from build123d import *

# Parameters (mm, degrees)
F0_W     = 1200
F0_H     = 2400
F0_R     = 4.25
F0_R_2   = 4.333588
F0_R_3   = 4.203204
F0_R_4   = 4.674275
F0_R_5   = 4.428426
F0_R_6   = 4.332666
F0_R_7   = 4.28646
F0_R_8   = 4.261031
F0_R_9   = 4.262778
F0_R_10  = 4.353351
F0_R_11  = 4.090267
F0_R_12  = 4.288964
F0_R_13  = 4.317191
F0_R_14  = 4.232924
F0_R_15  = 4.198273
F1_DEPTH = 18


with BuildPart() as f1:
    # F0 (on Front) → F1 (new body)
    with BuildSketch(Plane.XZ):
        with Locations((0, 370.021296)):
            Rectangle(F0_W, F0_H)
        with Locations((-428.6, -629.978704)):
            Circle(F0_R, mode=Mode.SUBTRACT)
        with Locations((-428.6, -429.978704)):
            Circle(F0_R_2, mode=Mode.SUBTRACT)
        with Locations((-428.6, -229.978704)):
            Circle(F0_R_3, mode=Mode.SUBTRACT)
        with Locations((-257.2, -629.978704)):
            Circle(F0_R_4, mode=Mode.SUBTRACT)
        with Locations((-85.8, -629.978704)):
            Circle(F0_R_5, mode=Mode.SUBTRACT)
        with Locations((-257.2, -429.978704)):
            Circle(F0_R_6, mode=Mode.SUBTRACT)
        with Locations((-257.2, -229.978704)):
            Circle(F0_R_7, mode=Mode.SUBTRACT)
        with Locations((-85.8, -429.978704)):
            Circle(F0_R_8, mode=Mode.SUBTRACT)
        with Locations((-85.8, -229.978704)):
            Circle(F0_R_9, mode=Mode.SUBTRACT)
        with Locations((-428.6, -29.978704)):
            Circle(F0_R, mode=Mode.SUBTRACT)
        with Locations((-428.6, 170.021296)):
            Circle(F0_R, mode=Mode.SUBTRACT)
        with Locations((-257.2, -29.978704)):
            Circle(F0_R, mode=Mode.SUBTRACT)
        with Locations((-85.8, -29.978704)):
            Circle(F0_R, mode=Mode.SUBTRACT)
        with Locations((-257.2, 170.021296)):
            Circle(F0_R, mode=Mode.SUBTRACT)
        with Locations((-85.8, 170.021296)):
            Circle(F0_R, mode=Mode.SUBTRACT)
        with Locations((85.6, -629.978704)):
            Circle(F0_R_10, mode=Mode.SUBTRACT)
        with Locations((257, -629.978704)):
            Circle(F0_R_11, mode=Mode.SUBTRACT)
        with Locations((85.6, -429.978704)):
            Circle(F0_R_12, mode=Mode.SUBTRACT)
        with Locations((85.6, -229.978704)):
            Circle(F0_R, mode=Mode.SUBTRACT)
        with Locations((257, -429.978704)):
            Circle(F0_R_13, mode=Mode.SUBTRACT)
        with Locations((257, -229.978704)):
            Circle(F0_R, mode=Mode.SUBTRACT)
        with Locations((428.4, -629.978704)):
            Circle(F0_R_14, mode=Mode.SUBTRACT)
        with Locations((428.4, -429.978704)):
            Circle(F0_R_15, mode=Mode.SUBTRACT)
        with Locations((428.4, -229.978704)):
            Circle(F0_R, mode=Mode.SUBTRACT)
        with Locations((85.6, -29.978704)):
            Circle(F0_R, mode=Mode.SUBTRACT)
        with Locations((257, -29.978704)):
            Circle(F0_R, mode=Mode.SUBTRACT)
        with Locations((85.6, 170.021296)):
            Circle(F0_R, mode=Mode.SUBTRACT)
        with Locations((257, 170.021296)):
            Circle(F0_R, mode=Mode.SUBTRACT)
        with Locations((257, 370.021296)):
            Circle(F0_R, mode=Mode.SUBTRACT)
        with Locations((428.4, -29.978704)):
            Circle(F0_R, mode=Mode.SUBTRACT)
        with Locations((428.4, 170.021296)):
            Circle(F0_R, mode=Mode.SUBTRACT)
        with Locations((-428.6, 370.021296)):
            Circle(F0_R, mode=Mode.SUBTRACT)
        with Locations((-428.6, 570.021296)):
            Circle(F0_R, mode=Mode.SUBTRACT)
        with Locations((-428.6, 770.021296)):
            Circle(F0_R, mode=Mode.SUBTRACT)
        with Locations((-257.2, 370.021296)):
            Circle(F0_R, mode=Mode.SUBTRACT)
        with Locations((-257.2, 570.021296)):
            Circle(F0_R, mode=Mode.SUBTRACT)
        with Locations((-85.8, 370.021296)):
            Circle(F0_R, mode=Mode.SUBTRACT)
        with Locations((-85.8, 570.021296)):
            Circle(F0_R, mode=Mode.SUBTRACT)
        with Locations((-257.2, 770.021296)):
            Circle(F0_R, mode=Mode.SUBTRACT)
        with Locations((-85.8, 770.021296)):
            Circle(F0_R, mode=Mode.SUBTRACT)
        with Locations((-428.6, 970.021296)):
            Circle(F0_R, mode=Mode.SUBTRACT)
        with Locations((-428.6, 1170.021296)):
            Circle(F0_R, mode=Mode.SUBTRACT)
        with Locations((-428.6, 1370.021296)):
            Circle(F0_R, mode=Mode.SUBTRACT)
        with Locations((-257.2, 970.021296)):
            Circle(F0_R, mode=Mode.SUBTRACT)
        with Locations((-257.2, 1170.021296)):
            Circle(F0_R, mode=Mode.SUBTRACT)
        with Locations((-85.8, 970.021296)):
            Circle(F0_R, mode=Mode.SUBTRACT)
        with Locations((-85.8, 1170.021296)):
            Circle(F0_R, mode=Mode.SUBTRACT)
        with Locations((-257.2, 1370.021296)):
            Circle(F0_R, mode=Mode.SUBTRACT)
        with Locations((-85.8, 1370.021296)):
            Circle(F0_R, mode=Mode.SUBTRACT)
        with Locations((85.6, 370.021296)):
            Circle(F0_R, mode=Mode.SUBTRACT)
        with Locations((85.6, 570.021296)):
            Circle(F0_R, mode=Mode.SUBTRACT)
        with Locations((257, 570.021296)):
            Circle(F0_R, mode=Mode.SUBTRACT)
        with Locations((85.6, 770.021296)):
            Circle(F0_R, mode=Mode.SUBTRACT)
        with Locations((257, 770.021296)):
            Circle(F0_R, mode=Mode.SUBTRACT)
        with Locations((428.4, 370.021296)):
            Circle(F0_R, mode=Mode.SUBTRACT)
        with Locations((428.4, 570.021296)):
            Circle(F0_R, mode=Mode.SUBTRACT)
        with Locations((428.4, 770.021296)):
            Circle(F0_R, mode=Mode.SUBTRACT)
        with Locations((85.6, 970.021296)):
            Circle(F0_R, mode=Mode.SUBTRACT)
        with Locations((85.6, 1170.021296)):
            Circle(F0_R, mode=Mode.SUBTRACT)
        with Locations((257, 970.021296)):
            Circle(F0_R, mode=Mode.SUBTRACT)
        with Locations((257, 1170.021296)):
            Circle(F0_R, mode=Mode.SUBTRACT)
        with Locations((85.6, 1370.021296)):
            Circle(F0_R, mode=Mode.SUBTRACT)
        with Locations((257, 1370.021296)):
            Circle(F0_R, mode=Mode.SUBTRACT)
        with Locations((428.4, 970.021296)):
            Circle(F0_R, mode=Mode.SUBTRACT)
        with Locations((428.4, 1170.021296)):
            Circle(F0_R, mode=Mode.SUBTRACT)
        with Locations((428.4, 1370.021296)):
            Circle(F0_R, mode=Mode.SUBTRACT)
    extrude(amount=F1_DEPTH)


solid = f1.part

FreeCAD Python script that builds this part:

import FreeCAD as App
import Part
import Sketcher
from FreeCAD import Vector


def add_polygon(sketch, points):
    """Adds a closed chain of lines whose ends are joined by coincident constraints."""
    first, n = sketch.GeometryCount, len(points)
    for a, b in zip(points, points[1:] + points[:1]):
        sketch.addGeometry(Part.LineSegment(App.Vector(*a, 0), App.Vector(*b, 0)), False)
    for i in range(n):
        sketch.addConstraint(Sketcher.Constraint("Coincident", first + i, 2, first + (i + 1) % n, 1))

doc = App.newDocument("Part")
body = doc.addObject("PartDesign::Body", "Body")

# Sketch on XZ plane
sketch1 = doc.addObject("Sketcher::SketchObject", "Sketch")
body.addObject(sketch1)
sketch1.AttachmentSupport = (doc.XZ_Plane, [""])
sketch1.MapMode = "FlatFace"
add_polygon(sketch1, [(-600, 1570), (-600, -830), (600, -830), (600, 1570)])  # lines 0-3
sketch1.addGeometry(Part.Circle(Vector(-428.6, -630, 0), Vector(0, 0, 1), 4.2), False)  # 4
sketch1.addGeometry(Part.Circle(Vector(-428.6, -430, 0), Vector(0, 0, 1), 4.3), False)  # 5
sketch1.addGeometry(Part.Circle(Vector(-257.2, -630, 0), Vector(0, 0, 1), 4.7), False)  # 6
sketch1.addGeometry(Part.Circle(Vector(-257.2, -430, 0), Vector(0, 0, 1), 4.3), False)  # 7
sketch1.addGeometry(Part.Circle(Vector(-428.6, -230, 0), Vector(0, 0, 1), 4.2), False)  # 8
sketch1.addGeometry(Part.Circle(Vector(-257.2, -230, 0), Vector(0, 0, 1), 4.3), False)  # 9
sketch1.addGeometry(Part.Circle(Vector(-85.8, -630, 0), Vector(0, 0, 1), 4.4), False)  # 10
sketch1.addGeometry(Part.Circle(Vector(-85.8, -430, 0), Vector(0, 0, 1), 4.3), False)  # 11
sketch1.addGeometry(Part.Circle(Vector(-85.8, -230, 0), Vector(0, 0, 1), 4.3), False)  # 12
sketch1.addGeometry(Part.Circle(Vector(-428.6, -30, 0), Vector(0, 0, 1), 4.2), False)  # 13
sketch1.addGeometry(Part.Circle(Vector(-257.2, -30, 0), Vector(0, 0, 1), 4.2), False)  # 14
sketch1.addGeometry(Part.Circle(Vector(-428.6, 170, 0), Vector(0, 0, 1), 4.2), False)  # 15
sketch1.addGeometry(Part.Circle(Vector(-257.2, 170, 0), Vector(0, 0, 1), 4.2), False)  # 16
sketch1.addGeometry(Part.Circle(Vector(-85.8, -30, 0), Vector(0, 0, 1), 4.2), False)  # 17
sketch1.addGeometry(Part.Circle(Vector(-85.8, 170, 0), Vector(0, 0, 1), 4.2), False)  # 18
sketch1.addGeometry(Part.Circle(Vector(85.6, -630, 0), Vector(0, 0, 1), 4.4), False)  # 19
sketch1.addGeometry(Part.Circle(Vector(85.6, -430, 0), Vector(0, 0, 1), 4.3), False)  # 20
sketch1.addGeometry(Part.Circle(Vector(85.6, -230, 0), Vector(0, 0, 1), 4.2), False)  # 21
sketch1.addGeometry(Part.Circle(Vector(257, -630, 0), Vector(0, 0, 1), 4.1), False)  # 22
sketch1.addGeometry(Part.Circle(Vector(257, -430, 0), Vector(0, 0, 1), 4.3), False)  # 23
sketch1.addGeometry(Part.Circle(Vector(428.4, -630, 0), Vector(0, 0, 1), 4.2), False)  # 24
sketch1.addGeometry(Part.Circle(Vector(428.4, -430, 0), Vector(0, 0, 1), 4.2), False)  # 25
sketch1.addGeometry(Part.Circle(Vector(257, -230, 0), Vector(0, 0, 1), 4.2), False)  # 26
sketch1.addGeometry(Part.Circle(Vector(428.4, -230, 0), Vector(0, 0, 1), 4.2), False)  # 27
sketch1.addGeometry(Part.Circle(Vector(85.6, -30, 0), Vector(0, 0, 1), 4.2), False)  # 28
sketch1.addGeometry(Part.Circle(Vector(85.6, 170, 0), Vector(0, 0, 1), 4.2), False)  # 29
sketch1.addGeometry(Part.Circle(Vector(257, -30, 0), Vector(0, 0, 1), 4.2), False)  # 30
sketch1.addGeometry(Part.Circle(Vector(428.4, -30, 0), Vector(0, 0, 1), 4.2), False)  # 31
sketch1.addGeometry(Part.Circle(Vector(257, 170, 0), Vector(0, 0, 1), 4.2), False)  # 32
sketch1.addGeometry(Part.Circle(Vector(428.4, 170, 0), Vector(0, 0, 1), 4.2), False)  # 33
sketch1.addGeometry(Part.Circle(Vector(-428.6, 370, 0), Vector(0, 0, 1), 4.2), False)  # 34
sketch1.addGeometry(Part.Circle(Vector(-428.6, 570, 0), Vector(0, 0, 1), 4.2), False)  # 35
sketch1.addGeometry(Part.Circle(Vector(-257.2, 370, 0), Vector(0, 0, 1), 4.2), False)  # 36
sketch1.addGeometry(Part.Circle(Vector(-257.2, 570, 0), Vector(0, 0, 1), 4.2), False)  # 37
sketch1.addGeometry(Part.Circle(Vector(-428.6, 770, 0), Vector(0, 0, 1), 4.2), False)  # 38
sketch1.addGeometry(Part.Circle(Vector(-257.2, 770, 0), Vector(0, 0, 1), 4.2), False)  # 39
sketch1.addGeometry(Part.Circle(Vector(-85.8, 370, 0), Vector(0, 0, 1), 4.2), False)  # 40
sketch1.addGeometry(Part.Circle(Vector(-85.8, 570, 0), Vector(0, 0, 1), 4.2), False)  # 41
sketch1.addGeometry(Part.Circle(Vector(-85.8, 770, 0), Vector(0, 0, 1), 4.2), False)  # 42
sketch1.addGeometry(Part.Circle(Vector(-428.6, 970, 0), Vector(0, 0, 1), 4.2), False)  # 43
sketch1.addGeometry(Part.Circle(Vector(-257.2, 970, 0), Vector(0, 0, 1), 4.2), False)  # 44
sketch1.addGeometry(Part.Circle(Vector(-428.6, 1170, 0), Vector(0, 0, 1), 4.2), False)  # 45
sketch1.addGeometry(Part.Circle(Vector(-428.6, 1370, 0), Vector(0, 0, 1), 4.2), False)  # 46
sketch1.addGeometry(Part.Circle(Vector(-257.2, 1170, 0), Vector(0, 0, 1), 4.2), False)  # 47
sketch1.addGeometry(Part.Circle(Vector(-257.2, 1370, 0), Vector(0, 0, 1), 4.2), False)  # 48
sketch1.addGeometry(Part.Circle(Vector(-85.8, 970, 0), Vector(0, 0, 1), 4.2), False)  # 49
sketch1.addGeometry(Part.Circle(Vector(-85.8, 1170, 0), Vector(0, 0, 1), 4.2), False)  # 50
sketch1.addGeometry(Part.Circle(Vector(-85.8, 1370, 0), Vector(0, 0, 1), 4.2), False)  # 51
sketch1.addGeometry(Part.Circle(Vector(85.6, 370, 0), Vector(0, 0, 1), 4.2), False)  # 52
sketch1.addGeometry(Part.Circle(Vector(85.6, 570, 0), Vector(0, 0, 1), 4.2), False)  # 53
sketch1.addGeometry(Part.Circle(Vector(85.6, 770, 0), Vector(0, 0, 1), 4.2), False)  # 54
sketch1.addGeometry(Part.Circle(Vector(257, 370, 0), Vector(0, 0, 1), 4.2), False)  # 55
sketch1.addGeometry(Part.Circle(Vector(257, 570, 0), Vector(0, 0, 1), 4.2), False)  # 56
sketch1.addGeometry(Part.Circle(Vector(428.4, 370, 0), Vector(0, 0, 1), 4.2), False)  # 57
sketch1.addGeometry(Part.Circle(Vector(428.4, 570, 0), Vector(0, 0, 1), 4.2), False)  # 58
sketch1.addGeometry(Part.Circle(Vector(257, 770, 0), Vector(0, 0, 1), 4.2), False)  # 59
sketch1.addGeometry(Part.Circle(Vector(428.4, 770, 0), Vector(0, 0, 1), 4.2), False)  # 60
sketch1.addGeometry(Part.Circle(Vector(85.6, 970, 0), Vector(0, 0, 1), 4.2), False)  # 61
sketch1.addGeometry(Part.Circle(Vector(85.6, 1170, 0), Vector(0, 0, 1), 4.2), False)  # 62
sketch1.addGeometry(Part.Circle(Vector(85.6, 1370, 0), Vector(0, 0, 1), 4.2), False)  # 63
sketch1.addGeometry(Part.Circle(Vector(257, 970, 0), Vector(0, 0, 1), 4.2), False)  # 64
sketch1.addGeometry(Part.Circle(Vector(428.4, 970, 0), Vector(0, 0, 1), 4.2), False)  # 65
sketch1.addGeometry(Part.Circle(Vector(257, 1170, 0), Vector(0, 0, 1), 4.2), False)  # 66
sketch1.addGeometry(Part.Circle(Vector(257, 1370, 0), Vector(0, 0, 1), 4.2), False)  # 67
sketch1.addGeometry(Part.Circle(Vector(428.4, 1170, 0), Vector(0, 0, 1), 4.2), False)  # 68
sketch1.addGeometry(Part.Circle(Vector(428.4, 1370, 0), Vector(0, 0, 1), 4.2), False)  # 69
sketch1.addConstraint([
    Sketcher.Constraint("Vertical", 0),
    Sketcher.Constraint("Horizontal", 1),
    Sketcher.Constraint("Vertical", 2),
    Sketcher.Constraint("Horizontal", 3),
    Sketcher.Constraint("Equal", 4, 13),
    Sketcher.Constraint("Equal", 13, 14),
    Sketcher.Constraint("Equal", 14, 15),
    Sketcher.Constraint("Equal", 15, 16),
    Sketcher.Constraint("Equal", 16, 17),
    Sketcher.Constraint("Equal", 17, 18),
    Sketcher.Constraint("Equal", 18, 21),
    Sketcher.Constraint("Equal", 21, 26),
    Sketcher.Constraint("Equal", 26, 27),
    Sketcher.Constraint("Equal", 27, 28),
    Sketcher.Constraint("Equal", 28, 29),
    Sketcher.Constraint("Equal", 29, 30),
    Sketcher.Constraint("Equal", 30, 31),
    Sketcher.Constraint("Equal", 31, 32),
    Sketcher.Constraint("Equal", 32, 33),
    Sketcher.Constraint("Equal", 33, 34),
    Sketcher.Constraint("Equal", 34, 35),
    Sketcher.Constraint("Equal", 35, 36),
    Sketcher.Constraint("Equal", 36, 37),
    Sketcher.Constraint("Equal", 37, 38),
    Sketcher.Constraint("Equal", 38, 39),
    Sketcher.Constraint("Equal", 39, 40),
    Sketcher.Constraint("Equal", 40, 41),
    Sketcher.Constraint("Equal", 41, 42),
    Sketcher.Constraint("Equal", 42, 43),
    Sketcher.Constraint("Equal", 43, 44),
    Sketcher.Constraint("Equal", 44, 45),
    Sketcher.Constraint("Equal", 45, 46),
    Sketcher.Constraint("Equal", 46, 47),
    Sketcher.Constraint("Equal", 47, 48),
    Sketcher.Constraint("Equal", 48, 49),
    Sketcher.Constraint("Equal", 49, 50),
    Sketcher.Constraint("Equal", 50, 51),
    Sketcher.Constraint("Equal", 51, 52),
    Sketcher.Constraint("Equal", 52, 53),
    Sketcher.Constraint("Equal", 53, 54),
    Sketcher.Constraint("Equal", 54, 55),
    Sketcher.Constraint("Equal", 55, 56),
    Sketcher.Constraint("Equal", 56, 57),
    Sketcher.Constraint("Equal", 57, 58),
    Sketcher.Constraint("Equal", 58, 59),
    Sketcher.Constraint("Equal", 59, 60),
    Sketcher.Constraint("Equal", 60, 61),
    Sketcher.Constraint("Equal", 61, 62),
    Sketcher.Constraint("Equal", 62, 63),
    Sketcher.Constraint("Equal", 63, 64),
    Sketcher.Constraint("Equal", 64, 65),
    Sketcher.Constraint("Equal", 65, 66),
    Sketcher.Constraint("Equal", 66, 67),
    Sketcher.Constraint("Equal", 67, 68),
    Sketcher.Constraint("Equal", 68, 69),
    Sketcher.Constraint("Horizontal", 4, 3, 6, 3),
    Sketcher.Constraint("Horizontal", 5, 3, 7, 3),
    Sketcher.Constraint("Horizontal", 8, 3, 9, 3),
    Sketcher.Constraint("Horizontal", 6, 3, 10, 3),
    Sketcher.Constraint("Horizontal", 7, 3, 11, 3),
    Sketcher.Constraint("Horizontal", 9, 3, 12, 3),
    Sketcher.Constraint("Horizontal", 13, 3, 14, 3),
    Sketcher.Constraint("Horizontal", 15, 3, 16, 3),
    Sketcher.Constraint("Horizontal", 14, 3, 17, 3),
    Sketcher.Constraint("Horizontal", 16, 3, 18, 3),
    Sketcher.Constraint("Horizontal", 10, 3, 19, 3),
    Sketcher.Constraint("Horizontal", 11, 3, 20, 3),
    Sketcher.Constraint("Horizontal", 12, 3, 21, 3),
    Sketcher.Constraint("Horizontal", 19, 3, 22, 3),
    Sketcher.Constraint("Horizontal", 20, 3, 23, 3),
    Sketcher.Constraint("Horizontal", 22, 3, 24, 3),
    Sketcher.Constraint("Horizontal", 23, 3, 25, 3),
    Sketcher.Constraint("Horizontal", 21, 3, 26, 3),
    Sketcher.Constraint("Horizontal", 26, 3, 27, 3),
    Sketcher.Constraint("Horizontal", 17, 3, 28, 3),
    Sketcher.Constraint("Horizontal", 18, 3, 29, 3),
    Sketcher.Constraint("Horizontal", 28, 3, 30, 3),
    Sketcher.Constraint("Horizontal", 30, 3, 31, 3),
    Sketcher.Constraint("Horizontal", 29, 3, 32, 3),
    Sketcher.Constraint("Horizontal", 32, 3, 33, 3),
    Sketcher.Constraint("Horizontal", 34, 3, 36, 3),
    Sketcher.Constraint("Horizontal", 35, 3, 37, 3),
    Sketcher.Constraint("Horizontal", 38, 3, 39, 3),
    Sketcher.Constraint("Horizontal", 36, 3, 40, 3),
    Sketcher.Constraint("Horizontal", 37, 3, 41, 3),
    Sketcher.Constraint("Horizontal", 39, 3, 42, 3),
    Sketcher.Constraint("Horizontal", 43, 3, 44, 3),
    Sketcher.Constraint("Horizontal", 45, 3, 47, 3),
    Sketcher.Constraint("Horizontal", 46, 3, 48, 3),
    Sketcher.Constraint("Horizontal", 44, 3, 49, 3),
    Sketcher.Constraint("Horizontal", 47, 3, 50, 3),
    Sketcher.Constraint("Horizontal", 48, 3, 51, 3),
    Sketcher.Constraint("Horizontal", 40, 3, 52, 3),
    Sketcher.Constraint("Horizontal", 41, 3, 53, 3),
    Sketcher.Constraint("Horizontal", 42, 3, 54, 3),
    Sketcher.Constraint("Horizontal", 52, 3, 55, 3),
    Sketcher.Constraint("Horizontal", 53, 3, 56, 3),
    Sketcher.Constraint("Horizontal", 55, 3, 57, 3),
    Sketcher.Constraint("Horizontal", 56, 3, 58, 3),
    Sketcher.Constraint("Horizontal", 54, 3, 59, 3),
    Sketcher.Constraint("Horizontal", 59, 3, 60, 3),
    Sketcher.Constraint("Horizontal", 49, 3, 61, 3),
    Sketcher.Constraint("Horizontal", 50, 3, 62, 3),
    Sketcher.Constraint("Horizontal", 51, 3, 63, 3),
    Sketcher.Constraint("Horizontal", 61, 3, 64, 3),
    Sketcher.Constraint("Horizontal", 64, 3, 65, 3),
    Sketcher.Constraint("Horizontal", 62, 3, 66, 3),
    Sketcher.Constraint("Horizontal", 63, 3, 67, 3),
    Sketcher.Constraint("Horizontal", 66, 3, 68, 3),
    Sketcher.Constraint("Horizontal", 67, 3, 69, 3),
    Sketcher.Constraint("Vertical", 4, 3, 5, 3),
    Sketcher.Constraint("Vertical", 6, 3, 7, 3),
    Sketcher.Constraint("Vertical", 5, 3, 8, 3),
    Sketcher.Constraint("Vertical", 7, 3, 9, 3),
    Sketcher.Constraint("Vertical", 10, 3, 11, 3),
    Sketcher.Constraint("Vertical", 11, 3, 12, 3),
    Sketcher.Constraint("Vertical", 8, 3, 13, 3),
    Sketcher.Constraint("Vertical", 9, 3, 14, 3),
    Sketcher.Constraint("Vertical", 13, 3, 15, 3),
    Sketcher.Constraint("Vertical", 14, 3, 16, 3),
    Sketcher.Constraint("Vertical", 12, 3, 17, 3),
    Sketcher.Constraint("Vertical", 17, 3, 18, 3),
    Sketcher.Constraint("Vertical", 19, 3, 20, 3),
    Sketcher.Constraint("Vertical", 20, 3, 21, 3),
    Sketcher.Constraint("Vertical", 22, 3, 23, 3),
    Sketcher.Constraint("Vertical", 24, 3, 25, 3),
    Sketcher.Constraint("Vertical", 23, 3, 26, 3),
    Sketcher.Constraint("Vertical", 25, 3, 27, 3),
    Sketcher.Constraint("Vertical", 21, 3, 28, 3),
    Sketcher.Constraint("Vertical", 28, 3, 29, 3),
    Sketcher.Constraint("Vertical", 26, 3, 30, 3),
    Sketcher.Constraint("Vertical", 27, 3, 31, 3),
    Sketcher.Constraint("Vertical", 30, 3, 32, 3),
    Sketcher.Constraint("Vertical", 31, 3, 33, 3),
    Sketcher.Constraint("Vertical", 15, 3, 34, 3),
    Sketcher.Constraint("Vertical", 34, 3, 35, 3),
    Sketcher.Constraint("Vertical", 16, 3, 36, 3),
    Sketcher.Constraint("Vertical", 36, 3, 37, 3),
    Sketcher.Constraint("Vertical", 35, 3, 38, 3),
    Sketcher.Constraint("Vertical", 37, 3, 39, 3),
    Sketcher.Constraint("Vertical", 18, 3, 40, 3),
    Sketcher.Constraint("Vertical", 40, 3, 41, 3),
    Sketcher.Constraint("Vertical", 41, 3, 42, 3),
    Sketcher.Constraint("Vertical", 38, 3, 43, 3),
    Sketcher.Constraint("Vertical", 39, 3, 44, 3),
    Sketcher.Constraint("Vertical", 43, 3, 45, 3),
    Sketcher.Constraint("Vertical", 45, 3, 46, 3),
    Sketcher.Constraint("Vertical", 44, 3, 47, 3),
    Sketcher.Constraint("Vertical", 47, 3, 48, 3),
    Sketcher.Constraint("Vertical", 42, 3, 49, 3),
    Sketcher.Constraint("Vertical", 49, 3, 50, 3),
    Sketcher.Constraint("Vertical", 50, 3, 51, 3),
    Sketcher.Constraint("Vertical", 29, 3, 52, 3),
    Sketcher.Constraint("Vertical", 52, 3, 53, 3),
    Sketcher.Constraint("Vertical", 53, 3, 54, 3),
    Sketcher.Constraint("Vertical", 32, 3, 55, 3),
    Sketcher.Constraint("Vertical", 55, 3, 56, 3),
    Sketcher.Constraint("Vertical", 33, 3, 57, 3),
    Sketcher.Constraint("Vertical", 57, 3, 58, 3),
    Sketcher.Constraint("Vertical", 56, 3, 59, 3),
    Sketcher.Constraint("Vertical", 58, 3, 60, 3),
    Sketcher.Constraint("Vertical", 54, 3, 61, 3),
    Sketcher.Constraint("Vertical", 61, 3, 62, 3),
    Sketcher.Constraint("Vertical", 62, 3, 63, 3),
    Sketcher.Constraint("Vertical", 59, 3, 64, 3),
    Sketcher.Constraint("Vertical", 60, 3, 65, 3),
    Sketcher.Constraint("Vertical", 64, 3, 66, 3),
    Sketcher.Constraint("Vertical", 66, 3, 67, 3),
    Sketcher.Constraint("Vertical", 65, 3, 68, 3),
    Sketcher.Constraint("Vertical", 68, 3, 69, 3),
    Sketcher.Constraint("Diameter", 4, 8.5),
    Sketcher.Constraint("DistanceX", 1, 1, 1, 2, 1200.0),
    Sketcher.Constraint("DistanceY", 0, 2, 0, 1, 2400.0),
    Sketcher.Constraint("DistanceX", -1, 1, 22, 3, 257.0),
    Sketcher.Constraint("DistanceX", 0, 2, -1, 1, 600.0),
    Sketcher.Constraint("DistanceX", 4, 3, -1, 1, 428.6),
    Sketcher.Constraint("DistanceX", 6, 3, -1, 1, 257.2),
    Sketcher.Constraint("DistanceX", 10, 3, -1, 1, 85.8),
    Sketcher.Constraint("DistanceX", -1, 1, 19, 3, 85.6),
    Sketcher.Constraint("DistanceX", -1, 1, 24, 3, 428.4),
    Sketcher.Constraint("Diameter", 6, 9.34855),
    Sketcher.Constraint("Diameter", 7, 8.665332),
    Sketcher.Constraint("Diameter", 8, 8.406408),
    Sketcher.Constraint("Diameter", 9, 8.57292),
    Sketcher.Constraint("Diameter", 5, 8.667176),
    Sketcher.Constraint("Diameter", 10, 8.856852),
    Sketcher.Constraint("Diameter", 11, 8.522062),
    Sketcher.Constraint("Diameter", 12, 8.525556),
    Sketcher.Constraint("Diameter", 19, 8.706702),
    Sketcher.Constraint("Diameter", 20, 8.577928),
    Sketcher.Constraint("Diameter", 22, 8.180534),
    Sketcher.Constraint("Diameter", 23, 8.634382),
    Sketcher.Constraint("Diameter", 24, 8.465848),
    Sketcher.Constraint("Diameter", 25, 8.396546),
    Sketcher.Constraint("DistanceY", 4, 3, -1, 1, 629.978704),
    Sketcher.Constraint("DistanceY", 5, 3, -1, 1, 429.978704),
    Sketcher.Constraint("DistanceY", 8, 3, -1, 1, 229.978704),
    Sketcher.Constraint("DistanceY", 13, 3, -1, 1, 29.978704),
    Sketcher.Constraint("DistanceY", -1, 1, 15, 3, 170.021296),
    Sketcher.Constraint("DistanceY", -1, 1, 34, 3, 370.021296),
    Sketcher.Constraint("DistanceY", -1, 1, 35, 3, 570.021296),
    Sketcher.Constraint("DistanceY", -1, 1, 38, 3, 770.021296),
    Sketcher.Constraint("DistanceY", -1, 1, 43, 3, 970.021296),
    Sketcher.Constraint("DistanceY", -1, 1, 45, 3, 1170.021296),
    Sketcher.Constraint("DistanceY", -1, 1, 46, 3, 1370.021296),
    Sketcher.Constraint("DistanceY", 0, 2, -1, 1, 829.978704),
])
pad1 = doc.addObject("PartDesign::Pad", "Pad")
body.addObject(pad1)
pad1.Profile = sketch1
pad1.Length = 18

doc.recompute()
